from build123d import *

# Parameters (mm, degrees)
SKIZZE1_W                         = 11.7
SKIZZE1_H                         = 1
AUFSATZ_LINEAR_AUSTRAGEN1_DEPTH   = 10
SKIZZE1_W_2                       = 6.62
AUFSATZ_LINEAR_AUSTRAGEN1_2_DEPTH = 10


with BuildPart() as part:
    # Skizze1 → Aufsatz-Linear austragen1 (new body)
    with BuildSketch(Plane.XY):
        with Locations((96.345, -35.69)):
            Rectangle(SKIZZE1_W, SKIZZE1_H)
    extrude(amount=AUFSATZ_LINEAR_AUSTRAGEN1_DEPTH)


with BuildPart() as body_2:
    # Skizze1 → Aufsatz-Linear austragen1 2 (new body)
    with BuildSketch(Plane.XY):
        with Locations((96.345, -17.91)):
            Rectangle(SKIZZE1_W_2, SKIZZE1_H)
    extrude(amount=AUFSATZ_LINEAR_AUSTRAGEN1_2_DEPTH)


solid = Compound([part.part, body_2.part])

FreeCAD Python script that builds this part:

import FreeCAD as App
import Part
import Sketcher

V = App.Vector
Q = App.Units.Quantity

doc = App.newDocument("Part")
body = doc.addObject("PartDesign::Body", "Body")

sketch1 = body.newObject("Sketcher::SketchObject", "Sketch")
sketch1.AttachmentSupport = (doc.getObject("XY_Plane"), [""])
sketch1.MapMode = "FlatFace"
sketch1.addGeometry(Part.LineSegment(V(90.5, -35.2, 0), V(90.5, -36.2, 0)), False)
sketch1.addGeometry(Part.LineSegment(V(90.5, -36.2, 0), V(102.2, -36.2, 0)), False)
sketch1.addGeometry(Part.LineSegment(V(102.2, -36.2, 0), V(102.2, -35.2, 0)), False)
sketch1.addGeometry(Part.LineSegment(V(102.2, -35.2, 0), V(90.5, -35.2, 0)), False)
sketch1.addConstraint(Sketcher.Constraint("Coincident", 0, 2, 1, 1))
sketch1.addConstraint(Sketcher.Constraint("Coincident", 1, 2, 2, 1))
sketch1.addConstraint(Sketcher.Constraint("Coincident", 2, 2, 3, 1))
sketch1.addConstraint(Sketcher.Constraint("Coincident", 3, 2, 0, 1))
sketch1.addConstraint(Sketcher.Constraint("Vertical", 0))
sketch1.addConstraint(Sketcher.Constraint("Horizontal", 1))
sketch1.addConstraint(Sketcher.Constraint("Vertical", 2))
sketch1.addConstraint(Sketcher.Constraint("Horizontal", 3))
sketch1.addConstraint(Sketcher.Constraint("DistanceY", 0, 2, 0, 1, Q("1 mm")))
sketch1.addConstraint(Sketcher.Constraint("DistanceX", 1, 1, 1, 2, Q("11.7 mm")))
sketch1.addConstraint(Sketcher.Constraint("DistanceY", 0, 2, -1, 1, Q("36.19 mm")))
sketch1.addConstraint(Sketcher.Constraint("DistanceX", -1, 1, 0, 2, Q("90.495 mm")))
pad1 = body.newObject("PartDesign::Pad", "Pad")
pad1.Profile = sketch1
pad1.Length = 10
body2 = doc.addObject("PartDesign::Body", "Body001")

sketch2 = body2.newObject("Sketcher::SketchObject", "Sketch001")
sketch2.AttachmentSupport = (doc.getObject("XY_Plane001"), [""])
sketch2.MapMode = "FlatFace"
sketch2.addGeometry(Part.LineSegment(V(93, -17.4, 0), V(93, -18.4, 0)), False)
sketch2.addGeometry(Part.LineSegment(V(93, -18.4, 0), V(99.7, -18.4, 0)), False)
sketch2.addGeometry(Part.LineSegment(V(99.7, -18.4, 0), V(99.7, -17.4, 0)), False)
sketch2.addGeometry(Part.LineSegment(V(99.7, -17.4, 0), V(93, -17.4, 0)), False)
sketch2.addConstraint(Sketcher.Constraint("Coincident", 0, 2, 1, 1))
sketch2.addConstraint(Sketcher.Constraint("Coincident", 1, 2, 2, 1))
sketch2.addConstraint(Sketcher.Constraint("Coincident", 2, 2, 3, 1))
sketch2.addConstraint(Sketcher.Constraint("Coincident", 3, 2, 0, 1))
sketch2.addConstraint(Sketcher.Constraint("Vertical", 0))
sketch2.addConstraint(Sketcher.Constraint("Horizontal", 1))
sketch2.addConstraint(Sketcher.Constraint("Vertical", 2))
sketch2.addConstraint(Sketcher.Constraint("Horizontal", 3))
sketch2.addConstraint(Sketcher.Constraint("DistanceY", 0, 2, 0, 1, Q("1 mm")))
sketch2.addConstraint(Sketcher.Constraint("DistanceX", 1, 1, 1, 2, Q("6.62 mm")))
sketch2.addConstraint(Sketcher.Constraint("DistanceY", 0, 2, -1, 1, Q("18.41 mm")))
sketch2.addConstraint(Sketcher.Constraint("DistanceX", -1, 1, 0, 2, Q("93.035 mm")))
pad2 = body2.newObject("PartDesign::Pad", "Pad001")
pad2.Profile = sketch2
pad2.Length = 10

doc.recompute()
